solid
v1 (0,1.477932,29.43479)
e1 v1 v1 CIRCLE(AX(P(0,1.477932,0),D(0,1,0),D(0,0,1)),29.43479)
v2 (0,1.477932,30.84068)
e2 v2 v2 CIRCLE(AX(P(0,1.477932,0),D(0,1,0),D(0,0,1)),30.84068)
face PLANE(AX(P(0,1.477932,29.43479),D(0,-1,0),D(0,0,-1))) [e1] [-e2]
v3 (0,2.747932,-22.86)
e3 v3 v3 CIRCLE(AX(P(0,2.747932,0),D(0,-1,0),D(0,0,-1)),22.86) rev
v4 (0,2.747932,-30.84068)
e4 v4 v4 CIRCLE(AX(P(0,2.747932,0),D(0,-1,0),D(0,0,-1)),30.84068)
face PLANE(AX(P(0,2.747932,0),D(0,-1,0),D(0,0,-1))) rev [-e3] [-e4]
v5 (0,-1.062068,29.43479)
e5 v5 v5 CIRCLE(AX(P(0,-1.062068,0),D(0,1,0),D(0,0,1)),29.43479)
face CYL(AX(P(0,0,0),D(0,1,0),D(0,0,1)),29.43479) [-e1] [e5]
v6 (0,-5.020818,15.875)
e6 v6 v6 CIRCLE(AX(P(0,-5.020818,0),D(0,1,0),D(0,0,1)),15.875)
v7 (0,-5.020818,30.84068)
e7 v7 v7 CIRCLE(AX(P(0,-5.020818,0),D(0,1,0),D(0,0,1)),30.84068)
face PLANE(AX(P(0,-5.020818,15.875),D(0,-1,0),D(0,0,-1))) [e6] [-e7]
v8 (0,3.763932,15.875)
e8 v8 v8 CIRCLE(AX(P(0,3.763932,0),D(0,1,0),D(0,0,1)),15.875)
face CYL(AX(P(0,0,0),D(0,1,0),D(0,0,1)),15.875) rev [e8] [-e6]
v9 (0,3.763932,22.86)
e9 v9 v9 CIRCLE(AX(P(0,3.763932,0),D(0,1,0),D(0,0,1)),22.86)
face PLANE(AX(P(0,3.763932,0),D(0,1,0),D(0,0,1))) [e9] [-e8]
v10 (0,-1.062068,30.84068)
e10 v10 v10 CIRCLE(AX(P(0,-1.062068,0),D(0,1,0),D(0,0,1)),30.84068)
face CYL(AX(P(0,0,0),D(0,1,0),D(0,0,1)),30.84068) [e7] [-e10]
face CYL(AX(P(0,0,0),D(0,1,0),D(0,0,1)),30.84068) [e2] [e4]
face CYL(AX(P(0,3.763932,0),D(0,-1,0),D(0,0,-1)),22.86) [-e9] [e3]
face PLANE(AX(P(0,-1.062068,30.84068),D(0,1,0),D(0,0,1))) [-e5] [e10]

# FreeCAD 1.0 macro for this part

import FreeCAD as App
import Part
import Sketcher
from FreeCAD import Vector
Q = App.Units.Quantity

doc = App.newDocument("Part")
body = doc.addObject("PartDesign::Body", "Body")

# Sketch on YZ plane
sketch1 = body.newObject("Sketcher::SketchObject", "Sketch")
sketch1.AttachmentSupport = (doc.getObject("YZ_Plane"), [""])
sketch1.MapMode = "FlatFace"
sketch1.addGeometry(Part.LineSegment(Vector(-5, 15.9, 0), Vector(2.7, 15.9, 0)), False)
sketch1.addGeometry(Part.LineSegment(Vector(2.7, 15.9, 0), Vector(2.7, 30.8, 0)), False)
sketch1.addGeometry(Part.LineSegment(Vector(2.7, 30.8, 0), Vector(1.5, 30.8, 0)), False)
sketch1.addGeometry(Part.LineSegment(Vector(1.5, 30.8, 0), Vector(1.5, 29.4, 0)), False)
sketch1.addGeometry(Part.LineSegment(Vector(1.5, 29.4, 0), Vector(-1.1, 29.4, 0)), False)
sketch1.addGeometry(Part.LineSegment(Vector(-1.1, 29.4, 0), Vector(-1.1, 30.8, 0)), False)
sketch1.addGeometry(Part.LineSegment(Vector(-1.1, 30.8, 0), Vector(-5, 30.8, 0)), False)
sketch1.addGeometry(Part.LineSegment(Vector(-5, 30.8, 0), Vector(-5, 15.9, 0)), False)
sketch1.addConstraint(Sketcher.Constraint("Coincident", 0, 2, 1, 1))
sketch1.addConstraint(Sketcher.Constraint("Coincident", 1, 2, 2, 1))
sketch1.addConstraint(Sketcher.Constraint("Coincident", 2, 2, 3, 1))
sketch1.addConstraint(Sketcher.Constraint("Coincident", 3, 2, 4, 1))
sketch1.addConstraint(Sketcher.Constraint("Coincident", 4, 2, 5, 1))
sketch1.addConstraint(Sketcher.Constraint("Coincident", 5, 2, 6, 1))
sketch1.addConstraint(Sketcher.Constraint("Coincident", 6, 2, 7, 1))
sketch1.addConstraint(Sketcher.Constraint("Coincident", 7, 2, 0, 1))
sketch1.addConstraint(Sketcher.Constraint("Horizontal", 0))
sketch1.addConstraint(Sketcher.Constraint("Vertical", 1))
sketch1.addConstraint(Sketcher.Constraint("Horizontal", 2))
sketch1.addConstraint(Sketcher.Constraint("Vertical", 3))
sketch1.addConstraint(Sketcher.Constraint("Horizontal", 4))
sketch1.addConstraint(Sketcher.Constraint("Vertical", 5))
sketch1.addConstraint(Sketcher.Constraint("Horizontal", 6))
sketch1.addConstraint(Sketcher.Constraint("Vertical", 7))
sketch1.addConstraint(Sketcher.Constraint("Horizontal", 2, 2, 5, 2))
sketch1.addConstraint(Sketcher.Constraint("DistanceX", 4, 2, 4, 1, Q("0.1 in")))
sketch1.addConstraint(Sketcher.Constraint("DistanceY", 1, 1, 1, 2, Q("0.5892 in")))
sketch1.addConstraint(Sketcher.Constraint("DistanceY", -1, 1, 0, 2, Q("0.625 in")))
sketch1.addConstraint(Sketcher.Constraint("DistanceX", 6, 2, 6, 1, 3.95875))
sketch1.addConstraint(Sketcher.Constraint("DistanceY", 3, 2, 3, 1, 1.40589))
sketch1.addConstraint(Sketcher.Constraint("DistanceX", 0, 1, 0, 2, 7.714902))
sketch1.addConstraint(Sketcher.Constraint("DistanceX", 6, 2, -1, 1, 5.020818))
revolution = body.newObject("PartDesign::Revolution", "Revolution")
revolution.Profile = sketch1
revolution.ReferenceAxis = (sketch1, ["H_Axis"])
revolution.Angle = 360

# Sketch on XZ plane
sketch2 = body.newObject("Sketcher::SketchObject", "Sketch001")
sketch2.AttachmentSupport = (doc.getObject("XZ_Plane"), [""])
sketch2.MapMode = "FlatFace"
sketch2.AttachmentOffset = App.Placement(Vector(0, 0, -2.747932), App.Rotation())
sketch2.addGeometry(Part.Circle(Vector(0, 0, 0), Vector(0, 0, 1), 31), False)
sketch2.addGeometry(Part.Circle(Vector(0, 0, 0), Vector(0, 0, 1), 16), False)
sketch2.addConstraint(Sketcher.Constraint("Coincident", 0, 3, -1, 1))
sketch2.addConstraint(Sketcher.Constraint("Coincident", 1, 3, -1, 1))
sketch2.addConstraint(Sketcher.Constraint("Diameter", 1, Q("1.25 in")))
sketch2.addConstraint(Sketcher.Constraint("Diameter", 0, Q("2.4284 in")))
pad1 = body.newObject("PartDesign::Pad", "Pad")
pad1.Profile = sketch2
pad1.Length = 0.053848

# Sketch on XZ plane
sketch3 = body.newObject("Sketcher::SketchObject", "Sketch002")
sketch3.AttachmentSupport = (doc.getObject("XZ_Plane"), [""])
sketch3.MapMode = "FlatFace"
sketch3.AttachmentOffset = App.Placement(Vector(0, 0, -2.747932), App.Rotation())
sketch3.addGeometry(Part.Circle(Vector(0, 0, 0), Vector(0, 0, 1), 23), False)
sketch3.addGeometry(Part.Circle(Vector(0, 0, 0), Vector(0, 0, 1), 16), False)
sketch3.addConstraint(Sketcher.Constraint("Coincident", 0, 3, -1, 1))
sketch3.addConstraint(Sketcher.Constraint("Coincident", 1, 3, -1, 1))
sketch3.addConstraint(Sketcher.Constraint("Diameter", 0, Q("1.8 in")))
sketch3.addConstraint(Sketcher.Constraint("Diameter", 1, Q("1.25 in")))
pad2 = body.newObject("PartDesign::Pad", "Pad001")
pad2.Profile = sketch3
pad2.Length = Q("0.04 in")
pad2.Reversed = True

doc.recompute()
